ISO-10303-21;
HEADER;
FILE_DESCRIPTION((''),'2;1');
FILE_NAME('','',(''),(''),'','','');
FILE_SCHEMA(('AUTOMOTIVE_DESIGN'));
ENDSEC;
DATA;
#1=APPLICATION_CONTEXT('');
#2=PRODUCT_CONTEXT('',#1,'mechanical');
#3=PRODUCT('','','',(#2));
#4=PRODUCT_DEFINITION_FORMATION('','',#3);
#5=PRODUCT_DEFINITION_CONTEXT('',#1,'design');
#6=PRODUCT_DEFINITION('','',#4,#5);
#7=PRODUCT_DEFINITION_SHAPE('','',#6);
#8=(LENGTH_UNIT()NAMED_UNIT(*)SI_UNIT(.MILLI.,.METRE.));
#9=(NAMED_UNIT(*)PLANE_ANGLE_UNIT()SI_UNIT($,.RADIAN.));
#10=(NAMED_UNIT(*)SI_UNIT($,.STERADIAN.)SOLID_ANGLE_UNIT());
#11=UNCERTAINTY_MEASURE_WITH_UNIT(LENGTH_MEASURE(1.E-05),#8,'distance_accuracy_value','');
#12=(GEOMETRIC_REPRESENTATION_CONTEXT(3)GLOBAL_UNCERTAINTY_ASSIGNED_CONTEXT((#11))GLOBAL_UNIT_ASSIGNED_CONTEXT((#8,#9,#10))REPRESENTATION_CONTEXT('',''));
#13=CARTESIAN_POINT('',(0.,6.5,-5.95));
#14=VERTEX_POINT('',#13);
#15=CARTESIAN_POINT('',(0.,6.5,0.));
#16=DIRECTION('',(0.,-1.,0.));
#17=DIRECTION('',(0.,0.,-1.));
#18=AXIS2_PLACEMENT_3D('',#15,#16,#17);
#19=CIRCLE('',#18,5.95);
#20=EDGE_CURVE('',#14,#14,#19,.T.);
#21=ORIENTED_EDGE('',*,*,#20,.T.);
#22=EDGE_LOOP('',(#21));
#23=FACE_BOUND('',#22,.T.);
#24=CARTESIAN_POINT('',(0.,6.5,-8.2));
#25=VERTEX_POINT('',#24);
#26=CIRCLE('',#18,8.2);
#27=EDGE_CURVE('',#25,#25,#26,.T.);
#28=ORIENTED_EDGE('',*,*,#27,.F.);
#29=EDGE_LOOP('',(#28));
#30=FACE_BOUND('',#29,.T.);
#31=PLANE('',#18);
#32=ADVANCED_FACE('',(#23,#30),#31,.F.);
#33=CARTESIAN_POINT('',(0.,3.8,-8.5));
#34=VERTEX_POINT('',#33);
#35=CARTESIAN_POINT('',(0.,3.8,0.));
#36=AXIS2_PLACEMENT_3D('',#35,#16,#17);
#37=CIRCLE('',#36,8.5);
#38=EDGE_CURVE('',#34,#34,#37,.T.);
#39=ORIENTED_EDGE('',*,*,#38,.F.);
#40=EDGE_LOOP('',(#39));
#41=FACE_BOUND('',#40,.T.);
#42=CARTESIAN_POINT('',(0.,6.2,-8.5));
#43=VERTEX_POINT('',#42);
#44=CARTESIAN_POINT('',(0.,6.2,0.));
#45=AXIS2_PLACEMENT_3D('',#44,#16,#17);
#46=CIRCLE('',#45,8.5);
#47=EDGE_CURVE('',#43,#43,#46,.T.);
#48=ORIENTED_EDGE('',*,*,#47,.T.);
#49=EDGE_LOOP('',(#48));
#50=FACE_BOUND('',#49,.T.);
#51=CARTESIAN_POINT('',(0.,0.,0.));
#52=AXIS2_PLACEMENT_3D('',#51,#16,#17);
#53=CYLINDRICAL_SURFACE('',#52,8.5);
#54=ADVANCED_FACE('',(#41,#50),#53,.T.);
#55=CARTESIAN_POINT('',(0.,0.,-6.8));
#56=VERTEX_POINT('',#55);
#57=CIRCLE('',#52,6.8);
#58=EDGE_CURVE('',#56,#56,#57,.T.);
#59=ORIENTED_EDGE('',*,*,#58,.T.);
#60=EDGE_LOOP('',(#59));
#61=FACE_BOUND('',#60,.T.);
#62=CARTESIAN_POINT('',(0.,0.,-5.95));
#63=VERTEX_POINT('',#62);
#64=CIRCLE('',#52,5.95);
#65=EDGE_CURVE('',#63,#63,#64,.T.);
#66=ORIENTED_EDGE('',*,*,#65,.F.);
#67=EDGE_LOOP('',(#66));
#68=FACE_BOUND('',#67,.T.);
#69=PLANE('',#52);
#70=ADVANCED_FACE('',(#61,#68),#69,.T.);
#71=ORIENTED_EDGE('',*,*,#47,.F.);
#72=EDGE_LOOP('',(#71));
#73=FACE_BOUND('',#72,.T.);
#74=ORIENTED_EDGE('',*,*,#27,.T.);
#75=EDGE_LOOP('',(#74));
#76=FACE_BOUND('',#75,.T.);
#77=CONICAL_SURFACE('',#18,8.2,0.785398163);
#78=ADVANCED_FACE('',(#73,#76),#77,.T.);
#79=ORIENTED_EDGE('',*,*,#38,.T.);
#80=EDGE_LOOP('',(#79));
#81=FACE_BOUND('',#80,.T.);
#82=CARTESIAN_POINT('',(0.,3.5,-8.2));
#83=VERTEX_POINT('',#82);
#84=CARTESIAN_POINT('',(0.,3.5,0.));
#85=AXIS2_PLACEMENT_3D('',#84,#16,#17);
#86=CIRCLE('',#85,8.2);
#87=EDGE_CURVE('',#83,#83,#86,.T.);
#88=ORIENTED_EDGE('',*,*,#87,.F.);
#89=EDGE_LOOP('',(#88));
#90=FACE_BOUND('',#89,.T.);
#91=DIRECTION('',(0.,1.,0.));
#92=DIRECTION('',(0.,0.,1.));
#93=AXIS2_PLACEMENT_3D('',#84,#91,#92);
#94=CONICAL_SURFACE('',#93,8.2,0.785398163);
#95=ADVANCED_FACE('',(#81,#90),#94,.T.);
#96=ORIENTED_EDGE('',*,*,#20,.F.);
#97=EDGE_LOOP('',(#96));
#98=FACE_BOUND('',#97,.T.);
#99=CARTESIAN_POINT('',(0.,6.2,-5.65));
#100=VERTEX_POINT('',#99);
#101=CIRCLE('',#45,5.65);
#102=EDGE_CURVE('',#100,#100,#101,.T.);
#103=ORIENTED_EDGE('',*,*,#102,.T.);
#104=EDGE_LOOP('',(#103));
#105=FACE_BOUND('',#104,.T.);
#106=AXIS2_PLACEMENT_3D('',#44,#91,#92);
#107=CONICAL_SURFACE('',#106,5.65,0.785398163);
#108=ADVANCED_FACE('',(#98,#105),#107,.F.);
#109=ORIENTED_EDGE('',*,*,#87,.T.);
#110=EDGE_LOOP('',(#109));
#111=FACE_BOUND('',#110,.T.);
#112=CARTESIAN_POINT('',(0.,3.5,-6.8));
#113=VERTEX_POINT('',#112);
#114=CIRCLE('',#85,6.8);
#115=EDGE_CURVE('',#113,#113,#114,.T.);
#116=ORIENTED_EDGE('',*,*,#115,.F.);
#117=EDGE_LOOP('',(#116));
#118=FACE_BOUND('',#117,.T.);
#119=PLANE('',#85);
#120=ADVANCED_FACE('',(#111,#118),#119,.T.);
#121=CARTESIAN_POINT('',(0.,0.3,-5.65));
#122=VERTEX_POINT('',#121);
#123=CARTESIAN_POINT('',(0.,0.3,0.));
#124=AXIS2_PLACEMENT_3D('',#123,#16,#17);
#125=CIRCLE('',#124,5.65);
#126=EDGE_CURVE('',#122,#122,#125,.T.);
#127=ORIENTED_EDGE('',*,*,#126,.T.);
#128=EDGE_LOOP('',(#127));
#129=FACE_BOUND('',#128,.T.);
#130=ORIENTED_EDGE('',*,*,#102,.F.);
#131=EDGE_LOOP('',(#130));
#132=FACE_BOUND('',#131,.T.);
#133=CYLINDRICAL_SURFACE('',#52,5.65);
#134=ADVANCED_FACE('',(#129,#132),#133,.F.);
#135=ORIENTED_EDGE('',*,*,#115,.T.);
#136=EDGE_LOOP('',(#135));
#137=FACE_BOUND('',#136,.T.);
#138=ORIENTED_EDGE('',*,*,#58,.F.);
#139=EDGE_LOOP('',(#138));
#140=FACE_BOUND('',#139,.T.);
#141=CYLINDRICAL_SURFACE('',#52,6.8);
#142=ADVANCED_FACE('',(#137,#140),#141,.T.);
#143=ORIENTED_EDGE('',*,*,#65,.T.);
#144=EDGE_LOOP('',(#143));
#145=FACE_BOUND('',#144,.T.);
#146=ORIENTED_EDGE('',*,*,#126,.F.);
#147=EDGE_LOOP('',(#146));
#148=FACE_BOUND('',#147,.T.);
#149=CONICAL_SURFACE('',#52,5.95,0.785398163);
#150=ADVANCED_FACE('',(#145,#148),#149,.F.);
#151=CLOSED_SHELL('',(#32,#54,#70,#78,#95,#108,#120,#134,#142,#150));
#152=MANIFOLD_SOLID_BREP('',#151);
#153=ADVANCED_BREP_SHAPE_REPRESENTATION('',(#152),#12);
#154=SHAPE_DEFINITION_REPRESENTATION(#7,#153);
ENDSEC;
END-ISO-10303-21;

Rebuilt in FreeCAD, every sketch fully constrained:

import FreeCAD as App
import Part
import Sketcher
from FreeCAD import Vector


def add_polygon(sketch, points):
    """Adds a closed chain of lines whose ends are joined by coincident constraints."""
    first, n = sketch.GeometryCount, len(points)
    for a, b in zip(points, points[1:] + points[:1]):
        sketch.addGeometry(Part.LineSegment(App.Vector(*a, 0), App.Vector(*b, 0)), False)
    for i in range(n):
        sketch.addConstraint(Sketcher.Constraint("Coincident", first + i, 2, first + (i + 1) % n, 1))

doc = App.newDocument("Part")
body = doc.addObject("PartDesign::Body", "Body")

# Sketch on XY plane
sketch1 = doc.addObject("Sketcher::SketchObject", "Sketch")
body.addObject(sketch1)
sketch1.AttachmentSupport = (doc.XY_Plane, [""])
sketch1.MapMode = "FlatFace"
add_polygon(sketch1, [(5.65, 0.3), (5.95, 0), (6.8, 0), (6.8, 3.5), (8.2, 3.5), (8.5, 3.8), (8.5, 6.2), (8.2, 6.5), (5.95, 6.5), (5.65, 6.2)])  # lines 0-9
sketch1.addConstraint([
    Sketcher.Constraint("Horizontal", 1),
    Sketcher.Constraint("Vertical", 2),
    Sketcher.Constraint("Horizontal", 3),
    Sketcher.Constraint("Vertical", 5),
    Sketcher.Constraint("Horizontal", 7),
    Sketcher.Constraint("Vertical", 9),
    Sketcher.Constraint("PointOnObject", 0, 2, -1),
    Sketcher.Constraint("Perpendicular", 0, 4),
    Sketcher.Constraint("Perpendicular", 4, 6),
    Sketcher.Constraint("Perpendicular", 6, 8),
    Sketcher.Constraint("Horizontal", 5, 2, 8, 2),
    Sketcher.Constraint("Vertical", 3, 2, 6, 2),
    Sketcher.Constraint("Vertical", 0, 2, 7, 2),
    Sketcher.Constraint("Equal", 0, 4),
    Sketcher.Constraint("DistanceX", 3, 1, 3, 2, 1.4),
    Sketcher.Constraint("DistanceY", 2, 1, 2, 2, 3.5),
    Sketcher.Constraint("DistanceY", 5, 1, 5, 2, 2.4),
    Sketcher.Constraint("DistanceY", 3, 2, 6, 2, 3.0),
    Sketcher.Constraint("DistanceX", 1, 1, 1, 2, 0.85),
    Sketcher.Constraint("DistanceX", -1, 1, 1, 2, 6.8),
])
revolution = doc.addObject("PartDesign::Revolution", "Revolution")
body.addObject(revolution)
revolution.Profile = sketch1
revolution.ReferenceAxis = (sketch1, ["V_Axis"])
revolution.Angle = 360

doc.recompute()
